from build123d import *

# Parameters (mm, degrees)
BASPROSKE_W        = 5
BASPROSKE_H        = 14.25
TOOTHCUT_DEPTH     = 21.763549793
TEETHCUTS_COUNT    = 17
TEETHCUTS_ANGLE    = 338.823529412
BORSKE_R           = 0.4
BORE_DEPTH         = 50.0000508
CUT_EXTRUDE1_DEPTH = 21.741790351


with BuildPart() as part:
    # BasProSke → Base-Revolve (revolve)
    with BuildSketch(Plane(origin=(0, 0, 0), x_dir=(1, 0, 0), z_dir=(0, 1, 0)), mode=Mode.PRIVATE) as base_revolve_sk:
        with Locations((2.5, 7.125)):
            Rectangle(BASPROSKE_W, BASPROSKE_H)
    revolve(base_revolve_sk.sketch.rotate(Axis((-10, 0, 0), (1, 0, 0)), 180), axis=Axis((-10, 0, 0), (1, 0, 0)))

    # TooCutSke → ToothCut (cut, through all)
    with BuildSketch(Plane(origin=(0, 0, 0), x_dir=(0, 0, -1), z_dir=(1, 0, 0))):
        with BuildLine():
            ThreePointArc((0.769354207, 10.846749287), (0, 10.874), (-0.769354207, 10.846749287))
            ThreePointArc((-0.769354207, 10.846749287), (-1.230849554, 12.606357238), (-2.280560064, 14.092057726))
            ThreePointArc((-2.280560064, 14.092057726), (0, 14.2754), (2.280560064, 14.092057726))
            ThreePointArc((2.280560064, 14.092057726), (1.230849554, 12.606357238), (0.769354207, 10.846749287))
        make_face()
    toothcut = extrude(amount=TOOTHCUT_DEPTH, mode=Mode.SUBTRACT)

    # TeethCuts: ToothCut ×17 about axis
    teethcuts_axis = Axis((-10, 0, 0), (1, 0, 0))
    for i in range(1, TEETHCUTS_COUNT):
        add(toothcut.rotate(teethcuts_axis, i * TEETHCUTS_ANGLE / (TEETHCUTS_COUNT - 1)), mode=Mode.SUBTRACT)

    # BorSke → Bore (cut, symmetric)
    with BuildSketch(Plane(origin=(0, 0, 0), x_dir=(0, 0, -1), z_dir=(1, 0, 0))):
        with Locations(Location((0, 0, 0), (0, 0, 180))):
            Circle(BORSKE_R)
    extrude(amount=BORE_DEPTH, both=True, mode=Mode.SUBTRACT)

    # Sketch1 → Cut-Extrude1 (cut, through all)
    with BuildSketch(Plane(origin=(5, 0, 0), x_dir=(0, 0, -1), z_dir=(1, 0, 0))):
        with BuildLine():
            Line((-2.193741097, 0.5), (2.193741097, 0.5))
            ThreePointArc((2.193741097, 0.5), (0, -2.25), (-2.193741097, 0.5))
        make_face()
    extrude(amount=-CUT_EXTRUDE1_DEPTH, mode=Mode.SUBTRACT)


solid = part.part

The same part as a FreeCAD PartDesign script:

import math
import FreeCAD as App
import Part
import Sketcher

doc = App.newDocument("Part")
body = doc.addObject("PartDesign::Body", "Body")

sketch1 = body.newObject("Sketcher::SketchObject", "Sketch")
sketch1.AttachmentSupport = (doc.getObject("XZ_Plane"), [""])
sketch1.MapMode = "FlatFace"
sketch1.addGeometry([
    Part.LineSegment(App.Vector(0, -14, 0), App.Vector(0, 0, 0)),
    Part.LineSegment(App.Vector(0, 0, 0), App.Vector(5, 0, 0)),
    Part.LineSegment(App.Vector(5, 0, 0), App.Vector(5, -14, 0)),
    Part.LineSegment(App.Vector(5, -14, 0), App.Vector(0, -14, 0)),
], False)
sketch1.addConstraint([
    Sketcher.Constraint("Coincident", 0, 2, 1, 1),
    Sketcher.Constraint("Coincident", 1, 2, 2, 1),
    Sketcher.Constraint("Coincident", 2, 2, 3, 1),
    Sketcher.Constraint("Coincident", 3, 2, 0, 1),
    Sketcher.Constraint("Vertical", 0),
    Sketcher.Constraint("Horizontal", 1),
    Sketcher.Constraint("Vertical", 2),
    Sketcher.Constraint("Horizontal", 3),
    Sketcher.Constraint("Coincident", 0, 2, -1, 1),
    Sketcher.Constraint("DistanceX", 1, 1, 1, 2, 5.0),
    Sketcher.Constraint("DistanceY", 0, 1, 0, 2, 14.25),
])
revolution = body.newObject("PartDesign::Revolution", "Revolution")
revolution.Profile = sketch1
revolution.ReferenceAxis = (sketch1, ["H_Axis"])
revolution.Angle = 360

sketch2 = body.newObject("Sketcher::SketchObject", "Sketch001")
sketch2.AttachmentSupport = (doc.getObject("YZ_Plane"), [""])
sketch2.MapMode = "FlatFace"
sketch2.addGeometry([
    Part.ArcOfCircle(Part.Circle(App.Vector(0, 0, 0), App.Vector(0, 0, 1), 10.9), math.radians(-4.06), math.radians(4.06)),
    Part.ArcOfCircle(Part.Circle(App.Vector(10.5, -5.9, 0), App.Vector(0, 0, 1), 5.1), math.radians(44), math.radians(86)),
    Part.ArcOfCircle(Part.Circle(App.Vector(0, 0, 0), App.Vector(0, 0, 1), 14.3), math.radians(-9.19), math.radians(9.19)),
    Part.ArcOfCircle(Part.Circle(App.Vector(10.5, 5.9, 0), App.Vector(0, 0, 1), 5.1), math.radians(-86), math.radians(-44)),
], False)
sketch2.addConstraint([
    Sketcher.Constraint("Coincident", 0, 1, 1, 2),
    Sketcher.Constraint("Coincident", 1, 1, 2, 1),
    Sketcher.Constraint("Coincident", 2, 2, 3, 2),
    Sketcher.Constraint("Coincident", 3, 1, 0, 2),
    Sketcher.Constraint("Coincident", 0, 3, -1, 1),
    Sketcher.Constraint("Coincident", 2, 3, -1, 1),
    Sketcher.Constraint("Equal", 1, 3),
    Sketcher.Constraint("Symmetric", 1, 3, 3, 3, -1),
    Sketcher.Constraint("Radius", 1, 5.1),
    Sketcher.Constraint("Radius", 0, 10.874),
    Sketcher.Constraint("Radius", 2, 14.2754),
    Sketcher.Constraint("DistanceX", -1, 1, 1, 3, 10.453469),
    Sketcher.Constraint("DistanceX", -1, 1, 0, 1, 10.846749),
])
pocket1 = body.newObject("PartDesign::Pocket", "Pocket")
pocket1.Profile = sketch2
pocket1.Type = "ThroughAll"
pocket1.Reversed = True
doc.recompute()

polarpattern = body.newObject("PartDesign::PolarPattern", "PolarPattern")
polarpattern.Originals = [pocket1]
polarpattern.Axis = (doc.getObject("X_Axis"), [""])
polarpattern.Angle = 360
polarpattern.Occurrences = 17
body.Tip = polarpattern

sketch3 = body.newObject("Sketcher::SketchObject", "Sketch002")
sketch3.AttachmentSupport = (doc.getObject("YZ_Plane"), [""])
sketch3.MapMode = "FlatFace"
sketch3.addGeometry(Part.Circle(App.Vector(0, 0, 0), App.Vector(0, 0, 1), 0.4), False)
sketch3.addConstraint([
    Sketcher.Constraint("Coincident", 0, 3, -1, 1),
    Sketcher.Constraint("Diameter", 0, 0.8),
])
pocket2 = body.newObject("PartDesign::Pocket", "Pocket001")
pocket2.Profile = sketch3
pocket2.Length = 100.000102
pocket2.Midplane = True

sketch4 = body.newObject("Sketcher::SketchObject", "Sketch003")
sketch4.AttachmentSupport = (doc.getObject("YZ_Plane"), [""])
sketch4.MapMode = "FlatFace"
sketch4.AttachmentOffset = App.Placement(App.Vector(0, 0, 5), App.Rotation())
sketch4.addGeometry([
    Part.LineSegment(App.Vector(0.5, -2.2, 0), App.Vector(0.5, 2.2, 0)),
    Part.ArcOfCircle(Part.Circle(App.Vector(0, 0, 0), App.Vector(0, 0, 1), 2.2), math.radians(77), math.radians(283)),
], False)
sketch4.addConstraint([
    Sketcher.Constraint("Coincident", 0, 1, 1, 2),
    Sketcher.Constraint("Coincident", 1, 1, 0, 2),
    Sketcher.Constraint("Vertical", 0),
    Sketcher.Constraint("Coincident", 1, 3, -1, 1),
    Sketcher.Constraint("Radius", 1, 2.25),
    Sketcher.Constraint("DistanceX", -1, 1, 0, 1, 0.5),
])
pocket3 = body.newObject("PartDesign::Pocket", "Pocket002")
pocket3.Profile = sketch4
pocket3.Type = "ThroughAll"

doc.recompute()
